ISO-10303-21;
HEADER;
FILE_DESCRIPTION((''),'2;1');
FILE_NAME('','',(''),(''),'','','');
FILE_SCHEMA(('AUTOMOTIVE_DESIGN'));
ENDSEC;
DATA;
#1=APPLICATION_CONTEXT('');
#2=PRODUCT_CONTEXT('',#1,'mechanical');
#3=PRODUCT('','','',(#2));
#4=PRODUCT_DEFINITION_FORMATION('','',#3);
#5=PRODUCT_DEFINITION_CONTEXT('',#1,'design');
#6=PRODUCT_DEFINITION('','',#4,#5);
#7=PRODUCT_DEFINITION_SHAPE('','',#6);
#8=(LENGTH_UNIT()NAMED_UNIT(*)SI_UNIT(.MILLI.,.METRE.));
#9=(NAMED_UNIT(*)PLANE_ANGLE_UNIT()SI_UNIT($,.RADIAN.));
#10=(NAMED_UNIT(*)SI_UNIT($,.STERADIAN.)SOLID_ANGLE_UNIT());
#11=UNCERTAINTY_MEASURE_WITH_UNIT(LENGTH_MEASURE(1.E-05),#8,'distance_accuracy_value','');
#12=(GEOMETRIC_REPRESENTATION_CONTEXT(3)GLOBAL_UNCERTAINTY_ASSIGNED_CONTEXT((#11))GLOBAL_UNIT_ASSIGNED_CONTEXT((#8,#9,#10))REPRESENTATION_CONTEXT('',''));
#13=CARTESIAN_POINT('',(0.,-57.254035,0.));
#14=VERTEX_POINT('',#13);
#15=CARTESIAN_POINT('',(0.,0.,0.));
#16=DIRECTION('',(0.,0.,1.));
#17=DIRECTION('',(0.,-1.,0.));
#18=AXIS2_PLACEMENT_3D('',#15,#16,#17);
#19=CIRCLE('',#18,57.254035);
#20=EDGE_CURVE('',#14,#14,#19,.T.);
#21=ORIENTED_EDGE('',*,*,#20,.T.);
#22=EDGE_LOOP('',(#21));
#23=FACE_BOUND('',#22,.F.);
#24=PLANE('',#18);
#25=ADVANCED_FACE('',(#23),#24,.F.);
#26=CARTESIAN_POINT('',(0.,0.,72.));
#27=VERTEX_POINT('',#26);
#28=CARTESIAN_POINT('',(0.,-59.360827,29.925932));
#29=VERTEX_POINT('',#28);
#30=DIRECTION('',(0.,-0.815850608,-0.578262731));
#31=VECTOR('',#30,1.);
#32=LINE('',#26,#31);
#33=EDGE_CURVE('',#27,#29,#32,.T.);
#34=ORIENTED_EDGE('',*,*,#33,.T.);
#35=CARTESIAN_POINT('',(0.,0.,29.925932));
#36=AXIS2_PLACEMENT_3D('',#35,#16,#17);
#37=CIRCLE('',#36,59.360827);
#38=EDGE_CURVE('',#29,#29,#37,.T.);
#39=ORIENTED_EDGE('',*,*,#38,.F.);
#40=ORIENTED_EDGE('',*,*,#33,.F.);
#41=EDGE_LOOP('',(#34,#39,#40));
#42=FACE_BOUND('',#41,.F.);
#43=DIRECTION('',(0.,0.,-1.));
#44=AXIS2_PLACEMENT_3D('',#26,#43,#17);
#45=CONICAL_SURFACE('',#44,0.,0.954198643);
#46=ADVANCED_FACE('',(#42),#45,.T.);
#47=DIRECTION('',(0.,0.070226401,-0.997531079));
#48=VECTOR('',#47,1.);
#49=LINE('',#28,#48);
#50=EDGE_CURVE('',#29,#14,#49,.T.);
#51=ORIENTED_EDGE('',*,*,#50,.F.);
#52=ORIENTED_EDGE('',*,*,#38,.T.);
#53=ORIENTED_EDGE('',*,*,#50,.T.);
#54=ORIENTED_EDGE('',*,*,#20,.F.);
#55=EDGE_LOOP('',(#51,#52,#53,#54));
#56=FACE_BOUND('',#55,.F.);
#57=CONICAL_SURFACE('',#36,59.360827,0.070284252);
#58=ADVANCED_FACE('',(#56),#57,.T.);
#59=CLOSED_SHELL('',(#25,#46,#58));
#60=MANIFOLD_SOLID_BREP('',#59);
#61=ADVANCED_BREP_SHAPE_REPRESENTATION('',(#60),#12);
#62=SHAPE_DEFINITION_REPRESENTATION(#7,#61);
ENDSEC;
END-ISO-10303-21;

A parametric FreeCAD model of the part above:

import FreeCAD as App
import Part
import Sketcher

V = App.Vector


def add_polygon(sketch, points):
    """Adds a closed chain of lines whose ends are joined by coincident constraints."""
    first, n = sketch.GeometryCount, len(points)
    for a, b in zip(points, points[1:] + points[:1]):
        sketch.addGeometry(Part.LineSegment(App.Vector(*a, 0), App.Vector(*b, 0)), False)
    for i in range(n):
        sketch.addConstraint(Sketcher.Constraint("Coincident", first + i, 2, first + (i + 1) % n, 1))

doc = App.newDocument("Part")
body = doc.addObject("PartDesign::Body", "Body")

# Sketch on YZ plane
sketch1 = body.newObject("Sketcher::SketchObject", "Sketch")
sketch1.AttachmentSupport = (doc.getObject("YZ_Plane"), [""])
sketch1.MapMode = "FlatFace"
add_polygon(sketch1, [(-59.360827, 29.925932), (-57.254035, 0), (0, 0), (0, 72)])  # lines 0-3
sketch1.addConstraint([
    Sketcher.Constraint("Horizontal", 1),
    Sketcher.Constraint("Vertical", 2),
    Sketcher.Constraint("Coincident", 1, 2, -1, 1),
    Sketcher.Constraint("DistanceY", 2, 1, 2, 2, 72.0),
    Sketcher.Constraint("Distance", 0, 30.0),
    Sketcher.Constraint("DistanceX", 1, 1, 1, 2, 57.254035),
    Sketcher.Constraint("DistanceY", -1, 1, 3, 2, 29.925932),
])
revolution = body.newObject("PartDesign::Revolution", "Revolution")
revolution.Profile = sketch1
revolution.ReferenceAxis = (sketch1, ["V_Axis"])
revolution.Angle = 360

doc.recompute()
